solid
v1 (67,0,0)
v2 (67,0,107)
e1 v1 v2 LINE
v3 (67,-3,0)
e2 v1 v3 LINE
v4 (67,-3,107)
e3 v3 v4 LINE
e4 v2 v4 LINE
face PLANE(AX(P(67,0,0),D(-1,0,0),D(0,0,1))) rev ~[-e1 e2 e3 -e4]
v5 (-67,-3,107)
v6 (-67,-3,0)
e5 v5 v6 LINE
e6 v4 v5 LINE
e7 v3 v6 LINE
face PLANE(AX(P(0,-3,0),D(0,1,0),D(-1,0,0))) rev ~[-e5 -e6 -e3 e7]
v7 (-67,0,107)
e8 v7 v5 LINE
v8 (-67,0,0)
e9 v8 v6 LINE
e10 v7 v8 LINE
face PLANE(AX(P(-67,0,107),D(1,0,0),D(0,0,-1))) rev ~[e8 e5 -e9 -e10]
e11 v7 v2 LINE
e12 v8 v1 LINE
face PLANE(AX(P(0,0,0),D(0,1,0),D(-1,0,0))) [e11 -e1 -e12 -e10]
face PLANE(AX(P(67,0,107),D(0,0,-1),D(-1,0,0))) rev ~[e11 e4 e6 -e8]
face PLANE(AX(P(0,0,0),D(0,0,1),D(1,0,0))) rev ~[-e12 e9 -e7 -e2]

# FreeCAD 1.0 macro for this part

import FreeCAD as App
import Part
import Sketcher
from FreeCAD import Vector


def add_polygon(sketch, points):
    """Adds a closed chain of lines whose ends are joined by coincident constraints."""
    first, n = sketch.GeometryCount, len(points)
    for a, b in zip(points, points[1:] + points[:1]):
        sketch.addGeometry(Part.LineSegment(App.Vector(*a, 0), App.Vector(*b, 0)), False)
    for i in range(n):
        sketch.addConstraint(Sketcher.Constraint("Coincident", first + i, 2, first + (i + 1) % n, 1))

doc = App.newDocument("Part")
body = doc.addObject("PartDesign::Body", "Body")

sketch1 = body.newObject("Sketcher::SketchObject", "Sketch")
sketch1.AttachmentSupport = (doc.getObject("XZ_Plane"), [""])
sketch1.MapMode = "FlatFace"
add_polygon(sketch1, [(67, 0), (-67, 0), (-67, 107), (67, 107)])
sketch1.addConstraint([
    Sketcher.Constraint("Horizontal", 0),
    Sketcher.Constraint("Vertical", 1),
    Sketcher.Constraint("Horizontal", 2),
    Sketcher.Constraint("Vertical", 3),
    Sketcher.Constraint("Symmetric", 0, 2, 3, 2, -1, 1),
    Sketcher.Constraint("DistanceY", 1, 1, 1, 2, 107.0),
    Sketcher.Constraint("DistanceX", 0, 2, -1, 1, 67.0),
])
pad1 = body.newObject("PartDesign::Pad", "Pad")
pad1.Profile = sketch1
pad1.Length = 3

doc.recompute()
